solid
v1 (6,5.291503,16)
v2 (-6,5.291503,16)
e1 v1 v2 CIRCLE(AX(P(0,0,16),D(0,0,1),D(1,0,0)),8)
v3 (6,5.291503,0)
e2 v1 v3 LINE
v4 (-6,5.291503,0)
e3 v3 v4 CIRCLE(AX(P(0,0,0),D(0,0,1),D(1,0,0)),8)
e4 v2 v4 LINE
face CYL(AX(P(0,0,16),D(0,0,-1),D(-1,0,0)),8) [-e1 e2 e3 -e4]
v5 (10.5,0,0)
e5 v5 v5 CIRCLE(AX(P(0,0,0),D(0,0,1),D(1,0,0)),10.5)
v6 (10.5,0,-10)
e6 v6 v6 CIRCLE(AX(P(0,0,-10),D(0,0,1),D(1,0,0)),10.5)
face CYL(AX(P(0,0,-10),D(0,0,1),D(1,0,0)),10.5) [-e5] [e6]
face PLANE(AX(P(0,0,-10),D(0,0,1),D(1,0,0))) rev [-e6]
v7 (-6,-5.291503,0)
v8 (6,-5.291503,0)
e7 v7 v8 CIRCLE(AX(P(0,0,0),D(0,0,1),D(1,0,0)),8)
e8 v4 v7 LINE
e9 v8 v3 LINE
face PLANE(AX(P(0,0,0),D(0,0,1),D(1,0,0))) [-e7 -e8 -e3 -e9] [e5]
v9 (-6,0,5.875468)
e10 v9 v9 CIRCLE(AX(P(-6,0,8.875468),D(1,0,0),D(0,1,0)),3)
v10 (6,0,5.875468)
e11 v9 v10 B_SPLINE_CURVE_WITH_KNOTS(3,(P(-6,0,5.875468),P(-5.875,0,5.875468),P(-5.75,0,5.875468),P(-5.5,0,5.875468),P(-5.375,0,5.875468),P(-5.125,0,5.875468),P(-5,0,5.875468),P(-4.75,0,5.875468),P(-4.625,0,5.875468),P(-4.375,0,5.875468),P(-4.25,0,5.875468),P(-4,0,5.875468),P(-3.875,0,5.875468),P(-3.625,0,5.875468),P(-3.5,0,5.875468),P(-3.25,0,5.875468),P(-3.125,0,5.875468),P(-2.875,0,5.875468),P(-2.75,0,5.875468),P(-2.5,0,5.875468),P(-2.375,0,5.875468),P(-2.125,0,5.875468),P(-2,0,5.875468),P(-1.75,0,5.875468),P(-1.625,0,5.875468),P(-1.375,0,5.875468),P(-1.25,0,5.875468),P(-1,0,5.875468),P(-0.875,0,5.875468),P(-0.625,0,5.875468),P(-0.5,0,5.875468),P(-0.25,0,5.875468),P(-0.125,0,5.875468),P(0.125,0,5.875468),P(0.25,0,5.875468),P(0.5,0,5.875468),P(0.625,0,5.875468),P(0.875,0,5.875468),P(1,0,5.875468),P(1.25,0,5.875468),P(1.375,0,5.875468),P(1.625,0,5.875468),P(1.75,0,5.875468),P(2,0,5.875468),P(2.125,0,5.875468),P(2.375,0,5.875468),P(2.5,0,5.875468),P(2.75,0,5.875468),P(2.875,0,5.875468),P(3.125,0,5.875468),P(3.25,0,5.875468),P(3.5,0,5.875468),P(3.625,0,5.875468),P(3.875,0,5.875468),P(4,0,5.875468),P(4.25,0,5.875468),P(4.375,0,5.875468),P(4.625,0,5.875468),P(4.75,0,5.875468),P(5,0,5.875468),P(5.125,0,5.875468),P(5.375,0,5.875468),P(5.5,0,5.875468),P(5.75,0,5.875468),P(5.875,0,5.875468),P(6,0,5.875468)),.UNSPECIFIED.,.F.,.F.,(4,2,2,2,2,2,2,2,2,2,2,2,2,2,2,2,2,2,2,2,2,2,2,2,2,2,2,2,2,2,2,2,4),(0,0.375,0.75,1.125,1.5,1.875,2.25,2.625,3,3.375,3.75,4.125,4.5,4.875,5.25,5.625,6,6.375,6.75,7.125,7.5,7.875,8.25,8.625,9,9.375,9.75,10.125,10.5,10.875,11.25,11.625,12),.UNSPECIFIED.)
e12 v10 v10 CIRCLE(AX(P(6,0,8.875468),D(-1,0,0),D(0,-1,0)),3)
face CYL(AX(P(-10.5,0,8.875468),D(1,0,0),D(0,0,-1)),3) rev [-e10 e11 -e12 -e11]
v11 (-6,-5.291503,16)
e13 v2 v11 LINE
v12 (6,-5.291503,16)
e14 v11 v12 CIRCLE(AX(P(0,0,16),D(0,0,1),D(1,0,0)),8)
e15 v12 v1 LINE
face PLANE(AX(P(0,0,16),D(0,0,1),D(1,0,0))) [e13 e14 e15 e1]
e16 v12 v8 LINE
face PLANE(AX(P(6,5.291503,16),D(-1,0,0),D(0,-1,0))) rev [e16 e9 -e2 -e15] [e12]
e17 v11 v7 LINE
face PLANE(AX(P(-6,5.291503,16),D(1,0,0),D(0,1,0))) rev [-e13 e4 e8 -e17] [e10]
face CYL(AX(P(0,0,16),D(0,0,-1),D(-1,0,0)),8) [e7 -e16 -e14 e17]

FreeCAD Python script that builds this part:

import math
import FreeCAD as App
import Part
import Sketcher

doc = App.newDocument("Part")
body = doc.addObject("PartDesign::Body", "Body")

sketch1 = body.newObject("Sketcher::SketchObject", "Sketch")
sketch1.AttachmentSupport = (doc.getObject("XY_Plane"), [""])
sketch1.MapMode = "FlatFace"
sketch1.addGeometry([
    Part.LineSegment(App.Vector(-6, 5.291503, 0), App.Vector(-6, -5.291503, 0)),
    Part.ArcOfCircle(Part.Circle(App.Vector(0, 0, 0), App.Vector(0, 0, 1), 8), math.radians(-138.590378), math.radians(-41.409622)),
    Part.LineSegment(App.Vector(6, -5.291503, 0), App.Vector(6, 5.291503, 0)),
    Part.ArcOfCircle(Part.Circle(App.Vector(0, 0, 0), App.Vector(0, 0, 1), 8), math.radians(41.409622), math.radians(138.590378)),
], False)
sketch1.addConstraint([
    Sketcher.Constraint("Coincident", 0, 2, 1, 1),
    Sketcher.Constraint("Coincident", 1, 2, 2, 1),
    Sketcher.Constraint("Coincident", 2, 2, 3, 1),
    Sketcher.Constraint("Coincident", 3, 2, 0, 1),
    Sketcher.Constraint("Vertical", 0),
    Sketcher.Constraint("Vertical", 2),
    Sketcher.Constraint("Coincident", 1, 3, -1, 1),
    Sketcher.Constraint("Coincident", 3, 3, -1, 1),
    Sketcher.Constraint("Equal", 1, 3),
    Sketcher.Constraint("Horizontal", 0, 2, 1, 2),
    Sketcher.Constraint("Radius", 1, 8.0),
    Sketcher.Constraint("DistanceX", 0, 2, -1, 1, 6.0),
])
pad1 = body.newObject("PartDesign::Pad", "Pad")
pad1.Profile = sketch1
pad1.Length = 16

sketch2 = body.newObject("Sketcher::SketchObject", "Sketch001")
sketch2.AttachmentSupport = (doc.getObject("XY_Plane"), [""])
sketch2.MapMode = "FlatFace"
sketch2.addGeometry(Part.Circle(App.Vector(0, 0, 0), App.Vector(0, 0, 1), 10.5), False)
sketch2.addConstraint([
    Sketcher.Constraint("Coincident", 0, 3, -1, 1),
    Sketcher.Constraint("Diameter", 0, 21.0),
])
pad2 = body.newObject("PartDesign::Pad", "Pad001")
pad2.Profile = sketch2
pad2.Length = 10
pad2.Reversed = True

sketch3 = body.newObject("Sketcher::SketchObject", "Sketch002")
sketch3.AttachmentSupport = (doc.getObject("YZ_Plane"), [""])
sketch3.MapMode = "FlatFace"
sketch3.addGeometry(Part.Circle(App.Vector(0, 8.875468, 0), App.Vector(0, 0, 1), 3), False)
sketch3.addConstraint([
    Sketcher.Constraint("PointOnObject", 0, 3, -2),
    Sketcher.Constraint("Diameter", 0, 6.0),
    Sketcher.Constraint("DistanceY", -1, 1, 0, 3, 8.875468),
])
pocket1 = body.newObject("PartDesign::Pocket", "Pocket")
pocket1.Profile = sketch3
pocket1.Type = "ThroughAll"
pocket1.Midplane = True

doc.recompute()
